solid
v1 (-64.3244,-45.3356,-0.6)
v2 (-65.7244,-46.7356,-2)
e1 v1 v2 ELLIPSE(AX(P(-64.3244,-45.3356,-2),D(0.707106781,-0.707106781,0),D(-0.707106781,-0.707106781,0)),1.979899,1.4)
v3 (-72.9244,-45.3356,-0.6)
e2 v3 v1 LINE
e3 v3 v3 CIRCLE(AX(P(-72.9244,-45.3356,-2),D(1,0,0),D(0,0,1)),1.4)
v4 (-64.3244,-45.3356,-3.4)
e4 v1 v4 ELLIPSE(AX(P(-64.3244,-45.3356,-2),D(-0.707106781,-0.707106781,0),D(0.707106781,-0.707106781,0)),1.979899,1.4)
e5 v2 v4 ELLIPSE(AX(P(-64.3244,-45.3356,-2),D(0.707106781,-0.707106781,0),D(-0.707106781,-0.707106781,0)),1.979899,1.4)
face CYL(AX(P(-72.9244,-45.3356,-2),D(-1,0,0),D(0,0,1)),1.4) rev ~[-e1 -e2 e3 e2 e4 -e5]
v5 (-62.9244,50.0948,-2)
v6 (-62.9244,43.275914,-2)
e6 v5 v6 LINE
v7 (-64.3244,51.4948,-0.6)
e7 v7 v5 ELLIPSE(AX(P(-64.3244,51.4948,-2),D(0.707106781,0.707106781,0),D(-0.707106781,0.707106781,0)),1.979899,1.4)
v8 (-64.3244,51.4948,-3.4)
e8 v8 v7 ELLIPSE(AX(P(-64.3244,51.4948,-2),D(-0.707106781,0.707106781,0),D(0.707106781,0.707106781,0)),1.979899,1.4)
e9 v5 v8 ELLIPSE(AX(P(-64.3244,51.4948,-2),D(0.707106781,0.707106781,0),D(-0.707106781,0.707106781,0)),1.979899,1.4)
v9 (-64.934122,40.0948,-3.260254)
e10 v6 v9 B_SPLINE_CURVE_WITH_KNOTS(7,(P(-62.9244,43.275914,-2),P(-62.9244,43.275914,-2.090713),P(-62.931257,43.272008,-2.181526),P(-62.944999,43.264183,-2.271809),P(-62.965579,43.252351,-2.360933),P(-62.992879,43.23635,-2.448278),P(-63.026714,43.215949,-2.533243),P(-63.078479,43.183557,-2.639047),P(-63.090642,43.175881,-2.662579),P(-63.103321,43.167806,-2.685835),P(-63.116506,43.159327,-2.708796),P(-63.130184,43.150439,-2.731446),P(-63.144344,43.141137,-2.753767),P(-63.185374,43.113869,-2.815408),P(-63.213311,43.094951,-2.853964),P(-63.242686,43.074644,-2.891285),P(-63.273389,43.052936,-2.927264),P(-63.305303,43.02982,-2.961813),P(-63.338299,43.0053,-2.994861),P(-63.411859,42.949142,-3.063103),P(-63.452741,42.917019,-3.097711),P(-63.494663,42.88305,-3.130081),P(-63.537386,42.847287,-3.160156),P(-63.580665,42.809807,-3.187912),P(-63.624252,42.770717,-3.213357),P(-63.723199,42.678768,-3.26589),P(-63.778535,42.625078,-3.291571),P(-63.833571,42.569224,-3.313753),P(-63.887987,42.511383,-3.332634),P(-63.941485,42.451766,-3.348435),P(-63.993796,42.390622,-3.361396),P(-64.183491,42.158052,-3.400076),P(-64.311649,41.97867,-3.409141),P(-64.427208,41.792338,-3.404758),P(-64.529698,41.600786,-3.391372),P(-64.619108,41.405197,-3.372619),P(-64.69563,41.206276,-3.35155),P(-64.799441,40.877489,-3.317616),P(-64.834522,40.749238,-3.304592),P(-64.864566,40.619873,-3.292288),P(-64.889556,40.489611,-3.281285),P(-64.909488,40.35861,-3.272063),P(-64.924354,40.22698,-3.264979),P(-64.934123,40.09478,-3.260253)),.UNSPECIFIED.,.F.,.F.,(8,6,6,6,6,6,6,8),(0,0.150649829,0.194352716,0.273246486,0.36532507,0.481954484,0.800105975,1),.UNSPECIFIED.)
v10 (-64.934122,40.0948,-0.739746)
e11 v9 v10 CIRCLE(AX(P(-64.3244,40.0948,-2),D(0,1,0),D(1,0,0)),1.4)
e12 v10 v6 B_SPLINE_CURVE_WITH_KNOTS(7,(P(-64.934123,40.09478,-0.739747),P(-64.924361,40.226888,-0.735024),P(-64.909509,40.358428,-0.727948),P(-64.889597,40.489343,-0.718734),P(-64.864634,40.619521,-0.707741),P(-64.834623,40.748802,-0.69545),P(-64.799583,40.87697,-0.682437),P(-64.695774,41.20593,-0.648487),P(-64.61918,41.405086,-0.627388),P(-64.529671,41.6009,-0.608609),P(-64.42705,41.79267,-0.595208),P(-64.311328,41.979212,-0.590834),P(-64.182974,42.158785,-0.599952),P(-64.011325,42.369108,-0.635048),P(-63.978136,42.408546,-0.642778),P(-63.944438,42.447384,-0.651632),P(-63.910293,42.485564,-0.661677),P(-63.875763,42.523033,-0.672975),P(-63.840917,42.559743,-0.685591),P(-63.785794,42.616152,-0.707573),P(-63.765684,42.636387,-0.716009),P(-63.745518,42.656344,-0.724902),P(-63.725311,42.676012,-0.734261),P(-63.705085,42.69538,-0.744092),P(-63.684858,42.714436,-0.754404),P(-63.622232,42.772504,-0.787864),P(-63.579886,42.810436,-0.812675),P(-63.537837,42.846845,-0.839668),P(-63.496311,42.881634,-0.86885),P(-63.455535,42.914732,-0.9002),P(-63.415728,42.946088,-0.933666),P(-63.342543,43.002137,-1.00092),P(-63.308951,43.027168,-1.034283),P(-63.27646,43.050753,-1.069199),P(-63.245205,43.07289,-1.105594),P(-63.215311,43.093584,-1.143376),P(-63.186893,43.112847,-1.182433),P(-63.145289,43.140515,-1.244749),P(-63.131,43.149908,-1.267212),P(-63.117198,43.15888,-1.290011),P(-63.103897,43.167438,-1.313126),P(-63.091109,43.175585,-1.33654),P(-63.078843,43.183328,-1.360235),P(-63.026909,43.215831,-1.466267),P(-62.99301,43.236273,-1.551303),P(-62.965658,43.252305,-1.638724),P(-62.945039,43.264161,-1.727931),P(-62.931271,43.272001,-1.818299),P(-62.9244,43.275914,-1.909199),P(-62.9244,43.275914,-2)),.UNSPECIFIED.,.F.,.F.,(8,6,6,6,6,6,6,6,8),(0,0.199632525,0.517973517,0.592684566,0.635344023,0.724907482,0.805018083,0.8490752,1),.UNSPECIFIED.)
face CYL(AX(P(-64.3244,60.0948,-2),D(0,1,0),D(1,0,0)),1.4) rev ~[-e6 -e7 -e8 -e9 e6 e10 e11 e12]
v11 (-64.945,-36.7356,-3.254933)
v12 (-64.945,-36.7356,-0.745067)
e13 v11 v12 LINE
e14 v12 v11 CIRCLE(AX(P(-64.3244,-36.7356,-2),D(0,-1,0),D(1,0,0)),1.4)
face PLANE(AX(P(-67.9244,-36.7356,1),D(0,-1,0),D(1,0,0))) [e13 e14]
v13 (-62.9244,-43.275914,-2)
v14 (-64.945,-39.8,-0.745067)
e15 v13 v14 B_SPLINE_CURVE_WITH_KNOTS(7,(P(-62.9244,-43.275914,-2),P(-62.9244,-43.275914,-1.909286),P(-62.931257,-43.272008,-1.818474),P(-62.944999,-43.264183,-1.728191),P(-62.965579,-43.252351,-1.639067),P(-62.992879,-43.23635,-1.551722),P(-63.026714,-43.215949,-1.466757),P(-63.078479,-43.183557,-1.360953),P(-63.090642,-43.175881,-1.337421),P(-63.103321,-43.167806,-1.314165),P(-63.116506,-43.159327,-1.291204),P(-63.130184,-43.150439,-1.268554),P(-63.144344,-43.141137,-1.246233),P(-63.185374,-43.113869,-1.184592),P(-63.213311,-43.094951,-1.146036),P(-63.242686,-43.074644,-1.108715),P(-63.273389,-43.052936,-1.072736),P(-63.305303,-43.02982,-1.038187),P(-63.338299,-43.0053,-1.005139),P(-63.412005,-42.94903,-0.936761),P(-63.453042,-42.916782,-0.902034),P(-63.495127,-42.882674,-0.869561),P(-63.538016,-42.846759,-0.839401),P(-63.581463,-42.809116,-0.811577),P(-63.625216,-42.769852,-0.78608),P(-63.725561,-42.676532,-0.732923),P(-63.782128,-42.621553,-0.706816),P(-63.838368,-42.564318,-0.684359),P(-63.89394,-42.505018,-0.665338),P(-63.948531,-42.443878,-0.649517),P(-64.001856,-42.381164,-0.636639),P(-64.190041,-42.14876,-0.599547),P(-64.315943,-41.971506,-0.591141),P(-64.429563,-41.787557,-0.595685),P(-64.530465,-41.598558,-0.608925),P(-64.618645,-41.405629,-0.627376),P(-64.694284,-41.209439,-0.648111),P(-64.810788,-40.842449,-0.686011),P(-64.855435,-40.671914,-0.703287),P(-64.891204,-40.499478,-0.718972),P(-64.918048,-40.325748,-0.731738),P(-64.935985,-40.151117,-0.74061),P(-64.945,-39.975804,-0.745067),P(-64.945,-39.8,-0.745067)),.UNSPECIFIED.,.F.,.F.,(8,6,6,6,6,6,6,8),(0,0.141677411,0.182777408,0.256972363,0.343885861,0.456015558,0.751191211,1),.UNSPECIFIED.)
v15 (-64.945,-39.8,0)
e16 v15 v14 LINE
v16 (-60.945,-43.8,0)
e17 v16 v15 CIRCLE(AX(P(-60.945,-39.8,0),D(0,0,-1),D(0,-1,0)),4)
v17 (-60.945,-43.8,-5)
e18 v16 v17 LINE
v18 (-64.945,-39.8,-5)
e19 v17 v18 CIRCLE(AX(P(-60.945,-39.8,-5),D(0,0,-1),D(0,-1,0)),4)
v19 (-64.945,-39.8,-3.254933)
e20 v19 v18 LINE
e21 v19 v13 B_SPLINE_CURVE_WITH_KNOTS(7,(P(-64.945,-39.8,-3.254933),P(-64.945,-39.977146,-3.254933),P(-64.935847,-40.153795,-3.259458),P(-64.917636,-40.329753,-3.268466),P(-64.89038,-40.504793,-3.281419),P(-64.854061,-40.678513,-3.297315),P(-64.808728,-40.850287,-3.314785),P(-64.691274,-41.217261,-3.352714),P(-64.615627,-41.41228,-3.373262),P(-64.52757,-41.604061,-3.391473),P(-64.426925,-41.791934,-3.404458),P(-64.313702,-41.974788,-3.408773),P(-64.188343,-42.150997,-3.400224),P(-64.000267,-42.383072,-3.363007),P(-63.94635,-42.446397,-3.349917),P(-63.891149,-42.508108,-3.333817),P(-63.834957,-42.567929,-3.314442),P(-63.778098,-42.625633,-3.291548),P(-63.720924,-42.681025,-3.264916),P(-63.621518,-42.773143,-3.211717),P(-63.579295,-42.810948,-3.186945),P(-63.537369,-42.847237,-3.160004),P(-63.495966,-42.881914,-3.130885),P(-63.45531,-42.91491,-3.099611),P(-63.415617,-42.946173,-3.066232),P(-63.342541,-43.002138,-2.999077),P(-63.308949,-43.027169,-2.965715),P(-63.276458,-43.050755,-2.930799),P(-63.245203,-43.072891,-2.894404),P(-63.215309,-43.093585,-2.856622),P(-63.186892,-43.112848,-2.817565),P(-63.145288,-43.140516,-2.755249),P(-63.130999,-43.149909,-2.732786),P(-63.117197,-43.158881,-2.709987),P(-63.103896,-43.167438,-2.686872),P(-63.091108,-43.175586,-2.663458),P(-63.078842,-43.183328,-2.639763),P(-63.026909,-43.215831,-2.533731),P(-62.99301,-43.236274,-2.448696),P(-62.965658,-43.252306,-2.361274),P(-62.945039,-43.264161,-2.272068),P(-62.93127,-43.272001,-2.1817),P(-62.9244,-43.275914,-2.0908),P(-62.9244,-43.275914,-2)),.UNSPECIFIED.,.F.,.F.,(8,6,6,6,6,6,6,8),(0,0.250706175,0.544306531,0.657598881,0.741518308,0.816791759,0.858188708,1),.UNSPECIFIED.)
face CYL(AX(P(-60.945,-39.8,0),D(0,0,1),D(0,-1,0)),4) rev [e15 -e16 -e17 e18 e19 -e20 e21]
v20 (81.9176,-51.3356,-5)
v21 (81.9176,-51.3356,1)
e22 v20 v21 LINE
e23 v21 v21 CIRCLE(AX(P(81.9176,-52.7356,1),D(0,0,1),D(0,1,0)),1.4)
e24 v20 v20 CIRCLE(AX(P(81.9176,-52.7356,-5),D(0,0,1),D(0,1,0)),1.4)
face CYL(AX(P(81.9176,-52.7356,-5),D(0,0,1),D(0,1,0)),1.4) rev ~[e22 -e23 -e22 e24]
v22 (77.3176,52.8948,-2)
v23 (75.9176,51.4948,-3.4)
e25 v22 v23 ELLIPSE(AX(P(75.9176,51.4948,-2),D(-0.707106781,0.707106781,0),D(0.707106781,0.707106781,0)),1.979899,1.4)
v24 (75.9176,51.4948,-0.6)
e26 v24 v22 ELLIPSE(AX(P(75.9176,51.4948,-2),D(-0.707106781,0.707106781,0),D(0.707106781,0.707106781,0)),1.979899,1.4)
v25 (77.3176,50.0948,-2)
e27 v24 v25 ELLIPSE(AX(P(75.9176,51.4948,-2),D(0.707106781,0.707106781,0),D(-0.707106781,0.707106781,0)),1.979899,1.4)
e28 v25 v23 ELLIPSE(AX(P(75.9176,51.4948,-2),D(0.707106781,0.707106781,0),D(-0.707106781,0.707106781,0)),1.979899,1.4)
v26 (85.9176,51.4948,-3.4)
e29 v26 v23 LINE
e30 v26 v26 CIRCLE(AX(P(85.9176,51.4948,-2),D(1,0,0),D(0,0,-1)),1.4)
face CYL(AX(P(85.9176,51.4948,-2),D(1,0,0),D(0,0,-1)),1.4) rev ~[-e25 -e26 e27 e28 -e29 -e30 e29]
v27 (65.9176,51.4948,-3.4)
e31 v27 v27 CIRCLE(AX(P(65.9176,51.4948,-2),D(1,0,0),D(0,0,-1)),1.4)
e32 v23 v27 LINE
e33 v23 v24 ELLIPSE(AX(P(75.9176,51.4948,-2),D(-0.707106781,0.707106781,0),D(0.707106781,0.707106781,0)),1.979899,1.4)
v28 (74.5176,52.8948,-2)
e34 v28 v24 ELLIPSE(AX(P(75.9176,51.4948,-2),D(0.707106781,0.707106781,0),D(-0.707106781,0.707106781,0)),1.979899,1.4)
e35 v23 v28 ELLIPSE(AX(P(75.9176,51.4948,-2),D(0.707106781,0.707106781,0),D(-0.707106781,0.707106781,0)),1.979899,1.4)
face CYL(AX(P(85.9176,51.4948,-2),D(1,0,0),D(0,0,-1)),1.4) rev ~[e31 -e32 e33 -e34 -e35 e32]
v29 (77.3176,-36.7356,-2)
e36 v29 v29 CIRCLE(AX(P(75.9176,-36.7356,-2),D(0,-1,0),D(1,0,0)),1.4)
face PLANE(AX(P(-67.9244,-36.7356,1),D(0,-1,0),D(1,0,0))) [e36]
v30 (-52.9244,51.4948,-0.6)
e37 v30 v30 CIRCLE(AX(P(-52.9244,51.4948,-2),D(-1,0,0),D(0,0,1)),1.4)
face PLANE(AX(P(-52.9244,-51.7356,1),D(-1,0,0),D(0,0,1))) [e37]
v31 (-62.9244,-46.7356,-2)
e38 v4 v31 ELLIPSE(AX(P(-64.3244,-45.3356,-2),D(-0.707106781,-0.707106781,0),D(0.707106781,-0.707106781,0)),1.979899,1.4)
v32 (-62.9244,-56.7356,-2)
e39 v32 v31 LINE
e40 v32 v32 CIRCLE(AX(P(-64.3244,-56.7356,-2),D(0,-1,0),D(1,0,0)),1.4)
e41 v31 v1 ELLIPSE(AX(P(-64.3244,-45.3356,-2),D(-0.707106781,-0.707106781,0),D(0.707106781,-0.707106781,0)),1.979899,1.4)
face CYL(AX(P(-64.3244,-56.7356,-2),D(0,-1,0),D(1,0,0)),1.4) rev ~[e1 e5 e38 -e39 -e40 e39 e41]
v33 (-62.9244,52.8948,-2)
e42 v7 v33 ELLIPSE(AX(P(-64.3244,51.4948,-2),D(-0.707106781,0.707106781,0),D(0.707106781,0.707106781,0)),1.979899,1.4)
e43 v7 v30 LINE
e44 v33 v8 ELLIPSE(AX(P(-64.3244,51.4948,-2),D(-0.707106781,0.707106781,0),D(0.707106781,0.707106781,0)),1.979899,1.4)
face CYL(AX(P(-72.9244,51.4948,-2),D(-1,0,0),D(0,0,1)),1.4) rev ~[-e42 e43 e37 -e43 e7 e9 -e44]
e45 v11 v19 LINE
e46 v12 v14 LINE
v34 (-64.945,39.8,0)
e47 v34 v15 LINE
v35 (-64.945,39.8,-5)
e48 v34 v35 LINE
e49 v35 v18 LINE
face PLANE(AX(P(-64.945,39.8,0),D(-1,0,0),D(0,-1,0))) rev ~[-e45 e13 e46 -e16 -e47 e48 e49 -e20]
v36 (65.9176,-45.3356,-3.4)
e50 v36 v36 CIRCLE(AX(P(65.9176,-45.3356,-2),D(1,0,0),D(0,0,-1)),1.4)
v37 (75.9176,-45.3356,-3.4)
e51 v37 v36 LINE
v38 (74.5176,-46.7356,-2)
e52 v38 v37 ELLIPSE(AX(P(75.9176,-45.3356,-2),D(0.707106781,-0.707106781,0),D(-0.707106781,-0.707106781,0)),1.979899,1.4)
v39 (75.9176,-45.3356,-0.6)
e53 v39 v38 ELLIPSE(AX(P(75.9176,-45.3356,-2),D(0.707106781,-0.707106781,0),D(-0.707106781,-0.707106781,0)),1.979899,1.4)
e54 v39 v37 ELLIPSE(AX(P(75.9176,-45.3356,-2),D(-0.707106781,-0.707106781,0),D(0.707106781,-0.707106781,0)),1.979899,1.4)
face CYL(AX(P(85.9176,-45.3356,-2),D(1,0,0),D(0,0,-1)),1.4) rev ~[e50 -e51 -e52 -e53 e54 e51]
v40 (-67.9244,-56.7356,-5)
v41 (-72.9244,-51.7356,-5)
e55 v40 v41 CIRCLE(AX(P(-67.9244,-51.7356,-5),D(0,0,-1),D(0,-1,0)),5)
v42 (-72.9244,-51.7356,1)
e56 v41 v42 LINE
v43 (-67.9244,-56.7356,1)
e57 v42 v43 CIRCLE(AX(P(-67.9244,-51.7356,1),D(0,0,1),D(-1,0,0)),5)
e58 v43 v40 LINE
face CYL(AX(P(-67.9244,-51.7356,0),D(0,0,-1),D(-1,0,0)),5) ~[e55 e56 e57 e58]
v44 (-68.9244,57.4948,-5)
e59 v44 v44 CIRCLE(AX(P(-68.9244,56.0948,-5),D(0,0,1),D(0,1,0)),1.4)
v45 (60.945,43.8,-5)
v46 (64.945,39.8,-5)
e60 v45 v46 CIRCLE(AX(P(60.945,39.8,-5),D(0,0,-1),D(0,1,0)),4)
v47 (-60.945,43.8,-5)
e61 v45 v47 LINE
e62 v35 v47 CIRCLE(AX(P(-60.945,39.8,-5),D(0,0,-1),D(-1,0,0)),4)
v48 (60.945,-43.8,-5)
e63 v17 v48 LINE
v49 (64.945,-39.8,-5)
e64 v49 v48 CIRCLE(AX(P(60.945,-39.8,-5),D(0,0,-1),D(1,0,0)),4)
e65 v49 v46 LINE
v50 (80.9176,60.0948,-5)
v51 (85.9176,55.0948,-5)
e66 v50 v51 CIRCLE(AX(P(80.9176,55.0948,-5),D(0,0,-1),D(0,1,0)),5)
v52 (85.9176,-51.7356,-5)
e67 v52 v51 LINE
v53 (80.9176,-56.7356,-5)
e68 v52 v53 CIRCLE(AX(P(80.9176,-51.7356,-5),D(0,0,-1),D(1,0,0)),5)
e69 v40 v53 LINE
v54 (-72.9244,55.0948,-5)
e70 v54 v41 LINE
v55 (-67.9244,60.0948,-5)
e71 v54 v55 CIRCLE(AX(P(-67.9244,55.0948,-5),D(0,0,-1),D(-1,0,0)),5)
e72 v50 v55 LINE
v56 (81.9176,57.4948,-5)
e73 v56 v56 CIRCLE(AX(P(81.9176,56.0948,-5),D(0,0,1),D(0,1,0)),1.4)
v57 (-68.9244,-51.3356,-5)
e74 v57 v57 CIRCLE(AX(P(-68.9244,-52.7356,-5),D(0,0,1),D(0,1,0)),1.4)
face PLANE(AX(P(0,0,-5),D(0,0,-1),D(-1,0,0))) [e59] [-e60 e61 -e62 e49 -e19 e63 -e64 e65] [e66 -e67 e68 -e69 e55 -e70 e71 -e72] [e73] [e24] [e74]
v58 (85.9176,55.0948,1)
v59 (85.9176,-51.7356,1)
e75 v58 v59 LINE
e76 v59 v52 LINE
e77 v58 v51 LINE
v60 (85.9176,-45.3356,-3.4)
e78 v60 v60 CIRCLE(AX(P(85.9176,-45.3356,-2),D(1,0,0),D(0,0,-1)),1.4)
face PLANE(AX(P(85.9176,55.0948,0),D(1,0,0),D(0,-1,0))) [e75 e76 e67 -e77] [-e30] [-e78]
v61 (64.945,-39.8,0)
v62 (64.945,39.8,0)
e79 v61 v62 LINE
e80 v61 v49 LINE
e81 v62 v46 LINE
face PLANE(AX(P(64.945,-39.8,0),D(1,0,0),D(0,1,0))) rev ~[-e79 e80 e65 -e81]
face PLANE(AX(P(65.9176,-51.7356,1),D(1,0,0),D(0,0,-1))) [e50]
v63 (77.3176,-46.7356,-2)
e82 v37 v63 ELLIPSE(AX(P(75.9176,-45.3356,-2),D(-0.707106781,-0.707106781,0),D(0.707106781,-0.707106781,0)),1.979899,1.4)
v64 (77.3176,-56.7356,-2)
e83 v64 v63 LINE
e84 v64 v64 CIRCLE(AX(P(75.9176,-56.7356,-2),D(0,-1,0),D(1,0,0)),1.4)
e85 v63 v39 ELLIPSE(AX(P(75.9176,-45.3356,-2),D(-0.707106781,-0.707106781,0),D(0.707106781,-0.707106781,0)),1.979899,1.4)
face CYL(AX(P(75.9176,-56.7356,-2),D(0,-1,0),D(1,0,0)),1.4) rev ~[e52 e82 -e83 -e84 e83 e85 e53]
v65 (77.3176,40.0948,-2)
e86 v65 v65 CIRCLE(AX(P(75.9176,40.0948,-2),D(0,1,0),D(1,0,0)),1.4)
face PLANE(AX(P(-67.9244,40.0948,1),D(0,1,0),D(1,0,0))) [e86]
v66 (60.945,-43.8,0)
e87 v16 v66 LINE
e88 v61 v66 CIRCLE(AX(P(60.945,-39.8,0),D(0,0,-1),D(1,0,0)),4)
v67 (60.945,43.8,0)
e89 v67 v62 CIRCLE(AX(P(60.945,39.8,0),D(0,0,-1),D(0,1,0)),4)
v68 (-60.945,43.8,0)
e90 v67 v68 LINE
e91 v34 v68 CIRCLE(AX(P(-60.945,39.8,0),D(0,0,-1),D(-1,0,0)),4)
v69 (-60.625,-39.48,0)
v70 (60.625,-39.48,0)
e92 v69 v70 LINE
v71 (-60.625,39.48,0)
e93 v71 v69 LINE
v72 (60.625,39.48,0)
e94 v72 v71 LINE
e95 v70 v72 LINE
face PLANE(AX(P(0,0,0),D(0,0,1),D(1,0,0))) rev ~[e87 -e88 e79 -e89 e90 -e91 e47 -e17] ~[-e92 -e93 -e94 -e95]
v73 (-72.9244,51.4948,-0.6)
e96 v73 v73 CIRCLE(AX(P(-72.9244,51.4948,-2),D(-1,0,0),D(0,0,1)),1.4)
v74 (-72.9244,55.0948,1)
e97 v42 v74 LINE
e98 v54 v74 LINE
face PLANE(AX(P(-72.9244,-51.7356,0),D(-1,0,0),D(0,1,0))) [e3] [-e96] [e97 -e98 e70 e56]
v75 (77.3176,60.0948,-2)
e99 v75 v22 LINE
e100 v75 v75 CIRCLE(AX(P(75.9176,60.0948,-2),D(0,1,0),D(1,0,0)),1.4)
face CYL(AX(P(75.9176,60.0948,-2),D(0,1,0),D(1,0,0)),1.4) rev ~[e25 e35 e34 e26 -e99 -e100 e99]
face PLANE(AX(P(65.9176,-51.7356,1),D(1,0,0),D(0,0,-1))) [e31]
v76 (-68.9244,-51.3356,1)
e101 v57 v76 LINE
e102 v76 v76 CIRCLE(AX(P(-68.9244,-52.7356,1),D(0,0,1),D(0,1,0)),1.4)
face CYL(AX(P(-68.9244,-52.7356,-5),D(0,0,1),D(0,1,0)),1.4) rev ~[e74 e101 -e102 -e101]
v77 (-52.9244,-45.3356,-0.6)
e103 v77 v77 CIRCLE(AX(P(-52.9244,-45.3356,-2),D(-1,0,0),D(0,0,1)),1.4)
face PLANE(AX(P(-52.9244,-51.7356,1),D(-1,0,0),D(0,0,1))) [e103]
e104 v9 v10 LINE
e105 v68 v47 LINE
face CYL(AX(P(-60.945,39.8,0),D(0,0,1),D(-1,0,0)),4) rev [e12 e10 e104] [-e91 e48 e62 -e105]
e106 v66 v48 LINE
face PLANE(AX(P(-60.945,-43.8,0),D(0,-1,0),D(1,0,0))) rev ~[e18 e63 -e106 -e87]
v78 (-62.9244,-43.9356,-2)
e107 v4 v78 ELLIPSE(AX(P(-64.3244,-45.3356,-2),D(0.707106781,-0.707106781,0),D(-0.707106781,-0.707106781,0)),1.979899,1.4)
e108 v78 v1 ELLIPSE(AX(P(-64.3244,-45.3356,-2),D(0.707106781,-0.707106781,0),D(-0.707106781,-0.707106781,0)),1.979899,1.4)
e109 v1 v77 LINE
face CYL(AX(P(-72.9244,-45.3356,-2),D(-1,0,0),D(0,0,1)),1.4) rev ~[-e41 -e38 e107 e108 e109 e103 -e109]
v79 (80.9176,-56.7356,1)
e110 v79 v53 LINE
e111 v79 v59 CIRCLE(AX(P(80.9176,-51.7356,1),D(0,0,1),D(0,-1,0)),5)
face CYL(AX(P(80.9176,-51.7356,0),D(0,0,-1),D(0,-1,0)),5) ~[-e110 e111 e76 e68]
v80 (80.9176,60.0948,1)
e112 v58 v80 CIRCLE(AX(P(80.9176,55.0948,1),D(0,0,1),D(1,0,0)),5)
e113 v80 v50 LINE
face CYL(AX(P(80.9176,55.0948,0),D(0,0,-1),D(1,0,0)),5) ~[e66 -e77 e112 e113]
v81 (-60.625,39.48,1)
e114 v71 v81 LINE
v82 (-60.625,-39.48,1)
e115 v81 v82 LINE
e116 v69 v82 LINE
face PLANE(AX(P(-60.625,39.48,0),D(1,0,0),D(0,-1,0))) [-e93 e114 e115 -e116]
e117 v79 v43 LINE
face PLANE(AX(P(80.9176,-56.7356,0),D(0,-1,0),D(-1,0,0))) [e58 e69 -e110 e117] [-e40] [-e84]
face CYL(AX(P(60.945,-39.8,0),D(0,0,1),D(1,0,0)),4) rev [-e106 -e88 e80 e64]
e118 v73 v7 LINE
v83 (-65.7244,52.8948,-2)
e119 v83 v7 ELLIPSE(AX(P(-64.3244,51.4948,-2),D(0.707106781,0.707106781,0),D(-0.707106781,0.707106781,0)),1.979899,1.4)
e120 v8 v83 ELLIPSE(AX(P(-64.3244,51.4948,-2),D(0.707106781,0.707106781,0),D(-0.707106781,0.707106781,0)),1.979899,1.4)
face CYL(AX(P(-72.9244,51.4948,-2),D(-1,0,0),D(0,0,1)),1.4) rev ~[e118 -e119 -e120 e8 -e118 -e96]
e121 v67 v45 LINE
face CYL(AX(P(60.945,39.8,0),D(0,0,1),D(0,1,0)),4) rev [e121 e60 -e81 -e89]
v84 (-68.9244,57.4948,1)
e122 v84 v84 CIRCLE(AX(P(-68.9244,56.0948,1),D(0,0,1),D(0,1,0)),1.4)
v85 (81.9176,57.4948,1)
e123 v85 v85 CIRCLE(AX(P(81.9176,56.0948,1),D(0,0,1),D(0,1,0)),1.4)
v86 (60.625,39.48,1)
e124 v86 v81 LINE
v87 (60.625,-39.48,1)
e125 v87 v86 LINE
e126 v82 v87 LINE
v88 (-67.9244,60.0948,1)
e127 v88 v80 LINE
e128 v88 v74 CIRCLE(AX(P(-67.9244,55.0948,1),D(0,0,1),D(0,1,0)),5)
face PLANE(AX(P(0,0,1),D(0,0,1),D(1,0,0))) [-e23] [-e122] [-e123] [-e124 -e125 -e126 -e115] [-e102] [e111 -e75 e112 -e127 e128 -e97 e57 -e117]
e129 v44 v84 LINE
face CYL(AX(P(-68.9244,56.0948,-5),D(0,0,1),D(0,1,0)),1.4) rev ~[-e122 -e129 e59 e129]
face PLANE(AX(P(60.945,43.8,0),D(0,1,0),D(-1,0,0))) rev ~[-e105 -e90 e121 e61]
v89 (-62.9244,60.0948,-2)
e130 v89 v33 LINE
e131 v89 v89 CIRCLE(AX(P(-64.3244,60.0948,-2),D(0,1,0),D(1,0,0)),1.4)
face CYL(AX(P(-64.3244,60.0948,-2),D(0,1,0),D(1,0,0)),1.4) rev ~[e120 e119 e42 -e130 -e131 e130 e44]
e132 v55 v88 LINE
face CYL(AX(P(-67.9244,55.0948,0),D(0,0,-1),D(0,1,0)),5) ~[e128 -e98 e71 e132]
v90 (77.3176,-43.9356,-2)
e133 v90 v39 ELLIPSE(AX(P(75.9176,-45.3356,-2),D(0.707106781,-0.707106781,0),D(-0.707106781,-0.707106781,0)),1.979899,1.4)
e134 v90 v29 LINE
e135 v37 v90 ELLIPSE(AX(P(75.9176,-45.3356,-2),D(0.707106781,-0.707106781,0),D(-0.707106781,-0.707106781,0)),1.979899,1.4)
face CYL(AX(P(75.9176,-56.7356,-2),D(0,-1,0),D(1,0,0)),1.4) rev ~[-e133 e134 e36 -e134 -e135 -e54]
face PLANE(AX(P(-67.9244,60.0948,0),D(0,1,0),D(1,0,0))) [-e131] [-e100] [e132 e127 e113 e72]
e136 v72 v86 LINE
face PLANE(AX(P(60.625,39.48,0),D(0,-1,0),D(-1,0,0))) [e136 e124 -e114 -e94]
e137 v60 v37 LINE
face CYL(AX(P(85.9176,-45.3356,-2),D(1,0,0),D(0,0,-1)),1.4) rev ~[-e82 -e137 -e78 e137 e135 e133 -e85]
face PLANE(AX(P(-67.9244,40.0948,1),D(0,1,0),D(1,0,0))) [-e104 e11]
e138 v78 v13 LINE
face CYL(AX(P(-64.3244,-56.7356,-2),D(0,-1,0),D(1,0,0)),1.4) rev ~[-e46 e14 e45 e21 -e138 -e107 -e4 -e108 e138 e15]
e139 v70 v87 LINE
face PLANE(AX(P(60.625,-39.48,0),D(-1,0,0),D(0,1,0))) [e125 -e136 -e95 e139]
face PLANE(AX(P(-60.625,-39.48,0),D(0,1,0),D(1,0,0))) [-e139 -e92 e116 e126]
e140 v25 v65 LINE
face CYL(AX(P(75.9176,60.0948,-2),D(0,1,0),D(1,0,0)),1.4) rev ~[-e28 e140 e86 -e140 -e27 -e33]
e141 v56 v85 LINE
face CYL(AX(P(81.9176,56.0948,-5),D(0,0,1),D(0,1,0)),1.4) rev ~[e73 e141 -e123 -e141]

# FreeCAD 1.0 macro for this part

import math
import FreeCAD as App
import Part
import Sketcher
from FreeCAD import Vector
Q = App.Units.Quantity

doc = App.newDocument("Part")
params = doc.addObject("Spreadsheet::Sheet", "Params")
for row, (alias, value) in enumerate([
    ("sketch1_radius", "5 mm"),
    ("sketch1_width", "121.25 mm"),
    ("sketch1_height", "78.96 mm"),
    ("pad1_length", "1 mm"),
    ("sketch2_radius", "5 mm"),
    ("sketch2_radius2", "4 mm"),
    ("sketch2_height", "79.6 mm"),
    ("sketch2_width", "121.89 mm"),
    ("pad2_length", "5 mm"),
    ("sketch3_diameter", "2.8 mm"),
    ("hole_diameter", "2.8 mm"),
    ("sketch4_diameter", "2.8 mm"),
    ("pocket1_length", "20 mm"),
    ("sketch5_diameter", "2.8 mm"),
    ("pocket2_length", "20 mm"),
    ("sketch6_diameter", "2.8 mm"),
    ("pocket3_length", "20 mm"),
    ("sketch7_diameter", "2.8 mm"),
    ("pocket4_length", "20 mm"),
], start=1):
    params.set(f"A{row}", alias)
    params.set(f"B{row}", "=" + value)
    params.setAlias(f"B{row}", alias)

body = doc.addObject("PartDesign::Body", "Body")

sketch1 = body.newObject("Sketcher::SketchObject", "Sketch")
sketch1.AttachmentSupport = (doc.getObject("XY_Plane"), [""])
sketch1.MapMode = "FlatFace"
sketch1.addGeometry(Part.LineSegment(Vector(81, 60, 0), Vector(-68, 60, 0)), False)
sketch1.addGeometry(Part.ArcOfCircle(Part.Circle(Vector(-68, 55, 0), Vector(0, 0, 1), 5), math.radians(90), math.radians(180)), False)
sketch1.addGeometry(Part.LineSegment(Vector(-73, 55, 0), Vector(-73, -52, 0)), False)
sketch1.addGeometry(Part.ArcOfCircle(Part.Circle(Vector(-68, -52, 0), Vector(0, 0, 1), 5), math.radians(180), math.radians(270)), False)
sketch1.addGeometry(Part.LineSegment(Vector(-68, -57, 0), Vector(81, -57, 0)), False)
sketch1.addGeometry(Part.ArcOfCircle(Part.Circle(Vector(81, -52, 0), Vector(0, 0, 1), 5), math.radians(-90), math.radians(0)), False)
sketch1.addGeometry(Part.LineSegment(Vector(86, -52, 0), Vector(86, 55, 0)), False)
sketch1.addGeometry(Part.ArcOfCircle(Part.Circle(Vector(81, 55, 0), Vector(0, 0, 1), 5), math.radians(0), math.radians(90)), False)
sketch1.addGeometry(Part.LineSegment(Vector(61, -39, 0), Vector(-61, -39, 0)), False)
sketch1.addGeometry(Part.LineSegment(Vector(-61, -39, 0), Vector(-61, 39, 0)), False)
sketch1.addGeometry(Part.LineSegment(Vector(-61, 39, 0), Vector(61, 39, 0)), False)
sketch1.addGeometry(Part.LineSegment(Vector(61, 39, 0), Vector(61, -39, 0)), False)
sketch1.addConstraint(Sketcher.Constraint("Tangent", 0, 2, 1, 1))
sketch1.addConstraint(Sketcher.Constraint("Tangent", 1, 2, 2, 1))
sketch1.addConstraint(Sketcher.Constraint("Tangent", 2, 2, 3, 1))
sketch1.addConstraint(Sketcher.Constraint("Tangent", 3, 2, 4, 1))
sketch1.addConstraint(Sketcher.Constraint("Tangent", 4, 2, 5, 1))
sketch1.addConstraint(Sketcher.Constraint("Tangent", 5, 2, 6, 1))
sketch1.addConstraint(Sketcher.Constraint("Tangent", 6, 2, 7, 1))
sketch1.addConstraint(Sketcher.Constraint("Tangent", 7, 2, 0, 1))
sketch1.addConstraint(Sketcher.Constraint("Coincident", 8, 2, 9, 1))
sketch1.addConstraint(Sketcher.Constraint("Coincident", 9, 2, 10, 1))
sketch1.addConstraint(Sketcher.Constraint("Coincident", 10, 2, 11, 1))
sketch1.addConstraint(Sketcher.Constraint("Coincident", 11, 2, 8, 1))
sketch1.addConstraint(Sketcher.Constraint("Horizontal", 0))
sketch1.addConstraint(Sketcher.Constraint("Vertical", 2))
sketch1.addConstraint(Sketcher.Constraint("Horizontal", 4))
sketch1.addConstraint(Sketcher.Constraint("Vertical", 6))
sketch1.addConstraint(Sketcher.Constraint("Horizontal", 8))
sketch1.addConstraint(Sketcher.Constraint("Vertical", 9))
sketch1.addConstraint(Sketcher.Constraint("Horizontal", 10))
sketch1.addConstraint(Sketcher.Constraint("Vertical", 11))
sketch1.addConstraint(Sketcher.Constraint("Equal", 1, 3))
sketch1.addConstraint(Sketcher.Constraint("Equal", 3, 5))
sketch1.addConstraint(Sketcher.Constraint("Equal", 5, 7))
sketch1.addConstraint(Sketcher.Constraint("Symmetric", 8, 2, 10, 2, -1, 1))
sketch1.addConstraint(Sketcher.Constraint("Radius", 1, Q("5 mm")))
sketch1.addConstraint(Sketcher.Constraint("DistanceX", 8, 2, 8, 1, Q("121.25 mm")))
sketch1.addConstraint(Sketcher.Constraint("DistanceY", 9, 1, 9, 2, Q("78.96 mm")))
sketch1.addConstraint(Sketcher.Constraint("DistanceX", 0, 2, 0, 1, Q("148.842 mm")))
sketch1.addConstraint(Sketcher.Constraint("DistanceY", 2, 2, 2, 1, Q("106.8304 mm")))
sketch1.addConstraint(Sketcher.Constraint("DistanceX", 1, 3, -1, 1, Q("67.9244 mm")))
sketch1.addConstraint(Sketcher.Constraint("DistanceY", -1, 1, 1, 3, Q("55.0948 mm")))
sketch1.setExpression("Constraints[24]", "Params.sketch1_radius")
sketch1.setExpression("Constraints[25]", "Params.sketch1_width")
sketch1.setExpression("Constraints[26]", "Params.sketch1_height")
pad1 = body.newObject("PartDesign::Pad", "Pad")
pad1.Profile = sketch1
pad1.setExpression("Length", "Params.pad1_length")

sketch2 = body.newObject("Sketcher::SketchObject", "Sketch001")
sketch2.AttachmentSupport = (doc.getObject("XY_Plane"), [""])
sketch2.MapMode = "FlatFace"
sketch2.addGeometry(Part.LineSegment(Vector(80.9, -56.7, 0), Vector(-67.9, -56.7, 0)), False)
sketch2.addGeometry(Part.ArcOfCircle(Part.Circle(Vector(-67.9, -51.7, 0), Vector(0, 0, 1), 5), math.radians(180), math.radians(270)), False)
sketch2.addGeometry(Part.LineSegment(Vector(-72.9, -51.7, 0), Vector(-72.9, 55.1, 0)), False)
sketch2.addGeometry(Part.ArcOfCircle(Part.Circle(Vector(-67.9, 55.1, 0), Vector(0, 0, 1), 5), math.radians(90), math.radians(180)), False)
sketch2.addGeometry(Part.LineSegment(Vector(-67.9, 60.1, 0), Vector(80.9, 60.1, 0)), False)
sketch2.addGeometry(Part.ArcOfCircle(Part.Circle(Vector(80.9, 55.1, 0), Vector(0, 0, 1), 5), math.radians(0), math.radians(90)), False)
sketch2.addGeometry(Part.LineSegment(Vector(85.9, 55.1, 0), Vector(85.9, -51.7, 0)), False)
sketch2.addGeometry(Part.ArcOfCircle(Part.Circle(Vector(80.9, -51.7, 0), Vector(0, 0, 1), 5), math.radians(-90), math.radians(0)), False)
sketch2.addGeometry(Part.ArcOfCircle(Part.Circle(Vector(-60.9, 39.8, 0), Vector(0, 0, 1), 4), math.radians(90), math.radians(180)), False)
sketch2.addGeometry(Part.LineSegment(Vector(-64.9, 39.8, 0), Vector(-64.9, -39.8, 0)), False)
sketch2.addGeometry(Part.ArcOfCircle(Part.Circle(Vector(-60.9, -39.8, 0), Vector(0, 0, 1), 4), math.radians(180), math.radians(270)), False)
sketch2.addGeometry(Part.LineSegment(Vector(-60.9, -43.8, 0), Vector(60.9, -43.8, 0)), False)
sketch2.addGeometry(Part.ArcOfCircle(Part.Circle(Vector(60.9, -39.8, 0), Vector(0, 0, 1), 4), math.radians(-90), math.radians(0)), False)
sketch2.addGeometry(Part.LineSegment(Vector(64.9, -39.8, 0), Vector(64.9, 39.8, 0)), False)
sketch2.addGeometry(Part.ArcOfCircle(Part.Circle(Vector(60.9, 39.8, 0), Vector(0, 0, 1), 4), math.radians(0), math.radians(90)), False)
sketch2.addGeometry(Part.LineSegment(Vector(60.9, 43.8, 0), Vector(-60.9, 43.8, 0)), False)
sketch2.addConstraint(Sketcher.Constraint("Tangent", 0, 2, 1, 2))
sketch2.addConstraint(Sketcher.Constraint("Tangent", 1, 1, 2, 1))
sketch2.addConstraint(Sketcher.Constraint("Tangent", 2, 2, 3, 2))
sketch2.addConstraint(Sketcher.Constraint("Tangent", 3, 1, 4, 1))
sketch2.addConstraint(Sketcher.Constraint("Tangent", 4, 2, 5, 2))
sketch2.addConstraint(Sketcher.Constraint("Tangent", 5, 1, 6, 1))
sketch2.addConstraint(Sketcher.Constraint("Tangent", 6, 2, 7, 2))
sketch2.addConstraint(Sketcher.Constraint("Tangent", 7, 1, 0, 1))
sketch2.addConstraint(Sketcher.Constraint("Tangent", 8, 2, 9, 1))
sketch2.addConstraint(Sketcher.Constraint("Tangent", 9, 2, 10, 1))
sketch2.addConstraint(Sketcher.Constraint("Tangent", 10, 2, 11, 1))
sketch2.addConstraint(Sketcher.Constraint("Tangent", 11, 2, 12, 1))
sketch2.addConstraint(Sketcher.Constraint("Tangent", 12, 2, 13, 1))
sketch2.addConstraint(Sketcher.Constraint("Tangent", 13, 2, 14, 1))
sketch2.addConstraint(Sketcher.Constraint("Tangent", 14, 2, 15, 1))
sketch2.addConstraint(Sketcher.Constraint("Tangent", 15, 2, 8, 1))
sketch2.addConstraint(Sketcher.Constraint("Horizontal", 0))
sketch2.addConstraint(Sketcher.Constraint("Vertical", 2))
sketch2.addConstraint(Sketcher.Constraint("Horizontal", 4))
sketch2.addConstraint(Sketcher.Constraint("Vertical", 6))
sketch2.addConstraint(Sketcher.Constraint("Vertical", 9))
sketch2.addConstraint(Sketcher.Constraint("Horizontal", 11))
sketch2.addConstraint(Sketcher.Constraint("Vertical", 13))
sketch2.addConstraint(Sketcher.Constraint("Horizontal", 15))
sketch2.addConstraint(Sketcher.Constraint("Equal", 1, 3))
sketch2.addConstraint(Sketcher.Constraint("Equal", 3, 5))
sketch2.addConstraint(Sketcher.Constraint("Equal", 5, 7))
sketch2.addConstraint(Sketcher.Constraint("Equal", 8, 10))
sketch2.addConstraint(Sketcher.Constraint("Equal", 10, 12))
sketch2.addConstraint(Sketcher.Constraint("Equal", 12, 14))
sketch2.addConstraint(Sketcher.Constraint("Symmetric", 8, 3, 12, 3, -1, 1))
sketch2.addConstraint(Sketcher.Constraint("Radius", 1, Q("5 mm")))
sketch2.addConstraint(Sketcher.Constraint("Radius", 8, Q("4 mm")))
sketch2.addConstraint(Sketcher.Constraint("DistanceY", 9, 2, 9, 1, Q("79.6 mm")))
sketch2.addConstraint(Sketcher.Constraint("DistanceX", 11, 1, 11, 2, Q("121.89 mm")))
sketch2.addConstraint(Sketcher.Constraint("DistanceX", 0, 2, 0, 1, Q("148.842 mm")))
sketch2.addConstraint(Sketcher.Constraint("DistanceY", 2, 1, 2, 2, Q("106.8304 mm")))
sketch2.addConstraint(Sketcher.Constraint("DistanceX", 1, 3, -1, 1, Q("67.9244 mm")))
sketch2.addConstraint(Sketcher.Constraint("DistanceY", 1, 3, -1, 1, Q("51.7356 mm")))
sketch2.setExpression("Constraints[31]", "Params.sketch2_radius")
sketch2.setExpression("Constraints[32]", "Params.sketch2_radius2")
sketch2.setExpression("Constraints[33]", "Params.sketch2_height")
sketch2.setExpression("Constraints[34]", "Params.sketch2_width")
pad2 = body.newObject("PartDesign::Pad", "Pad001")
pad2.Profile = sketch2
pad2.setExpression("Length", "Params.pad2_length")
pad2.Reversed = True

sketch3 = body.newObject("Sketcher::SketchObject", "Sketch002")
sketch3.AttachmentSupport = (doc.getObject("XY_Plane"), [""])
sketch3.MapMode = "FlatFace"
sketch3.AttachmentOffset = App.Placement(Vector(0, 0, -5), App.Rotation())
sketch3.addGeometry(Part.Circle(Vector(-68.9, -52.7, 0), Vector(0, 0, 1), 1.4), False)
sketch3.addGeometry(Part.Circle(Vector(81.9, -52.7, 0), Vector(0, 0, 1), 1.4), False)
sketch3.addGeometry(Part.Circle(Vector(81.9, 56.1, 0), Vector(0, 0, 1), 1.4), False)
sketch3.addGeometry(Part.Circle(Vector(-68.9, 56.1, 0), Vector(0, 0, 1), 1.4), False)
sketch3.addConstraint(Sketcher.Constraint("Equal", 0, 1))
sketch3.addConstraint(Sketcher.Constraint("Equal", 1, 2))
sketch3.addConstraint(Sketcher.Constraint("Equal", 2, 3))
sketch3.addConstraint(Sketcher.Constraint("Horizontal", 0, 3, 1, 3))
sketch3.addConstraint(Sketcher.Constraint("Horizontal", 2, 3, 3, 3))
sketch3.addConstraint(Sketcher.Constraint("Vertical", 1, 3, 2, 3))
sketch3.addConstraint(Sketcher.Constraint("Vertical", 0, 3, 3, 3))
sketch3.addConstraint(Sketcher.Constraint("Diameter", 0, Q("2.8 mm")))
sketch3.addConstraint(Sketcher.Constraint("DistanceX", 0, 3, 1, 3, Q("150.842 mm")))
sketch3.addConstraint(Sketcher.Constraint("DistanceX", 0, 3, -1, 1, Q("68.9244 mm")))
sketch3.addConstraint(Sketcher.Constraint("DistanceY", 0, 3, -1, 1, Q("52.7356 mm")))
sketch3.addConstraint(Sketcher.Constraint("DistanceY", -1, 1, 2, 3, Q("56.0948 mm")))
sketch3.setExpression("Constraints[7]", "Params.sketch3_diameter")
doc.recompute()
hole = body.newObject("PartDesign::Hole", "Hole")
hole.Profile = sketch3
hole.ThreadType = "None"
hole.setExpression("Diameter", "Params.hole_diameter")
hole.DepthType = "ThroughAll"
hole.Reversed = True

sketch4 = body.newObject("Sketcher::SketchObject", "Sketch003")
sketch4.AttachmentSupport = (doc.getObject("XZ_Plane"), [""])
sketch4.MapMode = "FlatFace"
sketch4.AttachmentOffset = App.Placement(Vector(0, 0, -60.0948), App.Rotation())
sketch4.addGeometry(Part.Circle(Vector(-64.3, -2, 0), Vector(0, 0, 1), 1.4), False)
sketch4.addGeometry(Part.Circle(Vector(75.9, -2, 0), Vector(0, 0, 1), 1.4), False)
sketch4.addConstraint(Sketcher.Constraint("Equal", 0, 1))
sketch4.addConstraint(Sketcher.Constraint("Horizontal", 0, 3, 1, 3))
sketch4.addConstraint(Sketcher.Constraint("Diameter", 0, Q("2.8 mm")))
sketch4.addConstraint(Sketcher.Constraint("DistanceY", 0, 3, -1, 1, Q("2 mm")))
sketch4.addConstraint(Sketcher.Constraint("DistanceX", 0, 3, 1, 3, Q("140.242 mm")))
sketch4.addConstraint(Sketcher.Constraint("DistanceX", 0, 3, -1, 1, Q("64.3244 mm")))
sketch4.setExpression("Constraints[2]", "Params.sketch4_diameter")
pocket1 = body.newObject("PartDesign::Pocket", "Pocket")
pocket1.Profile = sketch4
pocket1.setExpression("Length", "Params.pocket1_length")
pocket1.Reversed = True

sketch5 = body.newObject("Sketcher::SketchObject", "Sketch004")
sketch5.AttachmentSupport = (doc.getObject("XZ_Plane"), [""])
sketch5.MapMode = "FlatFace"
sketch5.AttachmentOffset = App.Placement(Vector(0, 0, 56.7356), App.Rotation())
sketch5.addGeometry(Part.Circle(Vector(75.9, -2, 0), Vector(0, 0, 1), 1.4), False)
sketch5.addGeometry(Part.Circle(Vector(-64.3, -2, 0), Vector(0, 0, 1), 1.4), False)
sketch5.addConstraint(Sketcher.Constraint("Equal", 0, 1))
sketch5.addConstraint(Sketcher.Constraint("Horizontal", 0, 3, 1, 3))
sketch5.addConstraint(Sketcher.Constraint("Diameter", 0, Q("2.8 mm")))
sketch5.addConstraint(Sketcher.Constraint("DistanceY", 0, 3, -1, 1, Q("2 mm")))
sketch5.addConstraint(Sketcher.Constraint("DistanceX", 1, 3, 0, 3, Q("140.242 mm")))
sketch5.addConstraint(Sketcher.Constraint("DistanceX", -1, 1, 0, 3, Q("75.9176 mm")))
sketch5.setExpression("Constraints[2]", "Params.sketch5_diameter")
pocket2 = body.newObject("PartDesign::Pocket", "Pocket001")
pocket2.Profile = sketch5
pocket2.setExpression("Length", "Params.pocket2_length")

sketch6 = body.newObject("Sketcher::SketchObject", "Sketch005")
sketch6.AttachmentSupport = (doc.getObject("YZ_Plane"), [""])
sketch6.MapMode = "FlatFace"
sketch6.AttachmentOffset = App.Placement(Vector(0, 0, 85.9176), App.Rotation())
sketch6.addGeometry(Part.Circle(Vector(51.5, -2, 0), Vector(0, 0, 1), 1.4), False)
sketch6.addGeometry(Part.Circle(Vector(-45.3, -2, 0), Vector(0, 0, 1), 1.4), False)
sketch6.addConstraint(Sketcher.Constraint("Equal", 0, 1))
sketch6.addConstraint(Sketcher.Constraint("Horizontal", 0, 3, 1, 3))
sketch6.addConstraint(Sketcher.Constraint("Diameter", 0, Q("2.8 mm")))
sketch6.addConstraint(Sketcher.Constraint("DistanceY", 0, 3, -1, 1, Q("2 mm")))
sketch6.addConstraint(Sketcher.Constraint("DistanceX", -1, 1, 0, 3, Q("51.4948 mm")))
sketch6.addConstraint(Sketcher.Constraint("DistanceX", 1, 3, -1, 1, Q("45.3356 mm")))
sketch6.setExpression("Constraints[2]", "Params.sketch6_diameter")
pocket3 = body.newObject("PartDesign::Pocket", "Pocket002")
pocket3.Profile = sketch6
pocket3.setExpression("Length", "Params.pocket3_length")

sketch7 = body.newObject("Sketcher::SketchObject", "Sketch006")
sketch7.AttachmentSupport = (doc.getObject("YZ_Plane"), [""])
sketch7.MapMode = "FlatFace"
sketch7.AttachmentOffset = App.Placement(Vector(0, 0, -72.9244), App.Rotation())
sketch7.addGeometry(Part.Circle(Vector(-45.3, -2, 0), Vector(0, 0, 1), 1.4), False)
sketch7.addGeometry(Part.Circle(Vector(51.5, -2, 0), Vector(0, 0, 1), 1.4), False)
sketch7.addConstraint(Sketcher.Constraint("Equal", 0, 1))
sketch7.addConstraint(Sketcher.Constraint("Horizontal", 0, 3, 1, 3))
sketch7.addConstraint(Sketcher.Constraint("Diameter", 0, Q("2.8 mm")))
sketch7.addConstraint(Sketcher.Constraint("DistanceY", 0, 3, -1, 1, Q("2 mm")))
sketch7.addConstraint(Sketcher.Constraint("DistanceX", 0, 3, -1, 1, Q("45.3356 mm")))
sketch7.addConstraint(Sketcher.Constraint("DistanceX", -1, 1, 1, 3, Q("51.4948 mm")))
sketch7.setExpression("Constraints[2]", "Params.sketch7_diameter")
pocket4 = body.newObject("PartDesign::Pocket", "Pocket003")
pocket4.Profile = sketch7
pocket4.setExpression("Length", "Params.pocket4_length")
pocket4.Reversed = True

doc.recompute()
